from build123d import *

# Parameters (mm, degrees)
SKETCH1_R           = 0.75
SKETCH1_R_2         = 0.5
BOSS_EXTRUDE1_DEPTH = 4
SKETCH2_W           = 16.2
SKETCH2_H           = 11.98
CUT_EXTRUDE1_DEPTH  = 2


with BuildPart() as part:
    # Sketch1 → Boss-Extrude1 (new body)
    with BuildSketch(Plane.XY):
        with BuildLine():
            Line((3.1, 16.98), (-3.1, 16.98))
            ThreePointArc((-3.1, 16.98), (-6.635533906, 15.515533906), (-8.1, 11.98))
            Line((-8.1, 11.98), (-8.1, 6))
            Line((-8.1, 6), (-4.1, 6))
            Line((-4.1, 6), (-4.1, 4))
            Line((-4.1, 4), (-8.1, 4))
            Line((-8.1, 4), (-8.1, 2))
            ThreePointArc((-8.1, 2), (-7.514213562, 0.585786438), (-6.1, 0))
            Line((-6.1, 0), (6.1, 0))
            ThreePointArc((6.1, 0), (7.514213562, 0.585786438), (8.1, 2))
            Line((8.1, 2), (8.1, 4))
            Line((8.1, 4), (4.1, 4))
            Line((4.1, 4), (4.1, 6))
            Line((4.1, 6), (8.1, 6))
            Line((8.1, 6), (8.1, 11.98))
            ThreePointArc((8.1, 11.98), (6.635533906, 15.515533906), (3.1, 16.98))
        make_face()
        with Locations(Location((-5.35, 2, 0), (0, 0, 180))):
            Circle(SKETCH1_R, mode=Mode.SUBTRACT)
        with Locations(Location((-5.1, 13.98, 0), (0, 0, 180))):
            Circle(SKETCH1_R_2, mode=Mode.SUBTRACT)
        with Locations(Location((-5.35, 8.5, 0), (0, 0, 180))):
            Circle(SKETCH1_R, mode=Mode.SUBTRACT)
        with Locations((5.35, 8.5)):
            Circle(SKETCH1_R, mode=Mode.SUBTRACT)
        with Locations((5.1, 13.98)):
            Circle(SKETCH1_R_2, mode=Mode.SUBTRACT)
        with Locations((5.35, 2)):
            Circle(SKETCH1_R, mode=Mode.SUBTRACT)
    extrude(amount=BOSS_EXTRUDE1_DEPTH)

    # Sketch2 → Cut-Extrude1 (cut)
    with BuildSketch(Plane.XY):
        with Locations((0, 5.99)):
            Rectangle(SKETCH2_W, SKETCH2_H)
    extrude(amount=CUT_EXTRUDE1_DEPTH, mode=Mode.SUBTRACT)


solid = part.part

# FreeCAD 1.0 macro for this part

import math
import FreeCAD as App
import Part
import Sketcher
Q = App.Units.Quantity

doc = App.newDocument("Part")
body = doc.addObject("PartDesign::Body", "Body")

# Sketch on XY plane
sketch1 = body.newObject("Sketcher::SketchObject", "Sketch")
sketch1.AttachmentSupport = (doc.getObject("XY_Plane"), [""])
sketch1.MapMode = "FlatFace"
sketch1.addGeometry([
    Part.LineSegment(App.Vector(3.1, 17, 0), App.Vector(-3.1, 17, 0)),  # 0
    Part.ArcOfCircle(Part.Circle(App.Vector(-3.1, 12, 0), App.Vector(0, 0, 1), 5), math.radians(90), math.radians(180)),  # 1
    Part.LineSegment(App.Vector(-8.1, 12, 0), App.Vector(-8.1, 6, 0)),  # 2
    Part.LineSegment(App.Vector(-8.1, 6, 0), App.Vector(-4.1, 6, 0)),  # 3
    Part.LineSegment(App.Vector(-4.1, 6, 0), App.Vector(-4.1, 4, 0)),  # 4
    Part.LineSegment(App.Vector(-4.1, 4, 0), App.Vector(-8.1, 4, 0)),  # 5
    Part.LineSegment(App.Vector(-8.1, 4, 0), App.Vector(-8.1, 2, 0)),  # 6
    Part.ArcOfCircle(Part.Circle(App.Vector(-6.1, 2, 0), App.Vector(0, 0, 1), 2), math.radians(-180), math.radians(-90)),  # 7
    Part.LineSegment(App.Vector(-6.1, 0, 0), App.Vector(6.1, 0, 0)),  # 8
    Part.ArcOfCircle(Part.Circle(App.Vector(6.1, 2, 0), App.Vector(0, 0, 1), 2), math.radians(-90), math.radians(0)),  # 9
    Part.LineSegment(App.Vector(8.1, 2, 0), App.Vector(8.1, 4, 0)),  # 10
    Part.LineSegment(App.Vector(8.1, 4, 0), App.Vector(4.1, 4, 0)),  # 11
    Part.LineSegment(App.Vector(4.1, 4, 0), App.Vector(4.1, 6, 0)),  # 12
    Part.LineSegment(App.Vector(4.1, 6, 0), App.Vector(8.1, 6, 0)),  # 13
    Part.LineSegment(App.Vector(8.1, 6, 0), App.Vector(8.1, 12, 0)),  # 14
    Part.ArcOfCircle(Part.Circle(App.Vector(3.1, 12, 0), App.Vector(0, 0, 1), 5), math.radians(0), math.radians(90)),  # 15
    Part.Circle(App.Vector(-5.3, 2, 0), App.Vector(0, 0, 1), 0.8),  # 16
    Part.Circle(App.Vector(5.3, 2, 0), App.Vector(0, 0, 1), 0.8),  # 17
    Part.Circle(App.Vector(-5.3, 8.5, 0), App.Vector(0, 0, 1), 0.8),  # 18
    Part.Circle(App.Vector(-5.1, 14, 0), App.Vector(0, 0, 1), 0.5),  # 19
    Part.Circle(App.Vector(5.3, 8.5, 0), App.Vector(0, 0, 1), 0.8),  # 20
    Part.Circle(App.Vector(5.1, 14, 0), App.Vector(0, 0, 1), 0.5),  # 21
], False)
sketch1.addConstraint([
    Sketcher.Constraint("Tangent", 0, 2, 1, 1),
    Sketcher.Constraint("Tangent", 1, 2, 2, 1),
    Sketcher.Constraint("Coincident", 2, 2, 3, 1),
    Sketcher.Constraint("Coincident", 3, 2, 4, 1),
    Sketcher.Constraint("Coincident", 4, 2, 5, 1),
    Sketcher.Constraint("Coincident", 5, 2, 6, 1),
    Sketcher.Constraint("Tangent", 6, 2, 7, 1),
    Sketcher.Constraint("Tangent", 7, 2, 8, 1),
    Sketcher.Constraint("Tangent", 8, 2, 9, 1),
    Sketcher.Constraint("Tangent", 9, 2, 10, 1),
    Sketcher.Constraint("Coincident", 10, 2, 11, 1),
    Sketcher.Constraint("Coincident", 11, 2, 12, 1),
    Sketcher.Constraint("Coincident", 12, 2, 13, 1),
    Sketcher.Constraint("Coincident", 13, 2, 14, 1),
    Sketcher.Constraint("Tangent", 14, 2, 15, 1),
    Sketcher.Constraint("Tangent", 15, 2, 0, 1),
    Sketcher.Constraint("Horizontal", 0),
    Sketcher.Constraint("Vertical", 2),
    Sketcher.Constraint("Horizontal", 3),
    Sketcher.Constraint("Vertical", 4),
    Sketcher.Constraint("Horizontal", 5),
    Sketcher.Constraint("Vertical", 6),
    Sketcher.Constraint("Horizontal", 8),
    Sketcher.Constraint("Vertical", 10),
    Sketcher.Constraint("Horizontal", 11),
    Sketcher.Constraint("Vertical", 12),
    Sketcher.Constraint("Horizontal", 13),
    Sketcher.Constraint("Vertical", 14),
    Sketcher.Constraint("Equal", 7, 9),
    Sketcher.Constraint("Equal", 1, 15),
    Sketcher.Constraint("Equal", 16, 17),
    Sketcher.Constraint("Equal", 17, 18),
    Sketcher.Constraint("Equal", 18, 20),
    Sketcher.Constraint("Equal", 19, 21),
    Sketcher.Constraint("Symmetric", 7, 2, 8, 2, -1, 1),
    Sketcher.Constraint("Symmetric", 16, 3, 17, 3, -2),
    Sketcher.Constraint("Symmetric", 18, 3, 20, 3, -2),
    Sketcher.Constraint("Symmetric", 19, 3, 21, 3, -2),
    Sketcher.Constraint("Symmetric", 4, 2, 11, 2, -2),
    Sketcher.Constraint("Symmetric", 2, 2, 13, 2, -2),
    Sketcher.Constraint("Horizontal", 9, 3, 16, 3),
    Sketcher.Constraint("Vertical", 16, 3, 18, 3),
    Sketcher.Constraint("Vertical", 2, 2, 5, 2),
    Sketcher.Constraint("Equal", 4, 6),
    Sketcher.Constraint("Diameter", 19, Q("1 mm")),
    Sketcher.Constraint("Radius", 1, Q("5 mm")),
    Sketcher.Constraint("Radius", 7, Q("2 mm")),
    Sketcher.Constraint("Diameter", 16, Q("1.5 mm")),
    Sketcher.Constraint("DistanceX", 3, 1, 3, 2, Q("4 mm")),
    Sketcher.Constraint("DistanceY", 4, 2, 4, 1, Q("2 mm")),
    Sketcher.Constraint("DistanceX", 0, 2, 0, 1, Q("6.2 mm")),
    Sketcher.Constraint("DistanceX", 19, 3, 1, 3, Q("2 mm")),
    Sketcher.Constraint("DistanceY", 1, 3, 19, 3, Q("2 mm")),
    Sketcher.Constraint("DistanceY", 2, 2, 2, 1, Q("5.98 mm")),
    Sketcher.Constraint("DistanceY", -1, 1, 18, 3, Q("8.5 mm")),
    Sketcher.Constraint("DistanceX", 16, 3, 17, 3, Q("10.7 mm")),
])
pad1 = body.newObject("PartDesign::Pad", "Pad")
pad1.Profile = sketch1
pad1.Length = 4

# Sketch on XY plane
sketch2 = body.newObject("Sketcher::SketchObject", "Sketch001")
sketch2.AttachmentSupport = (doc.getObject("XY_Plane"), [""])
sketch2.MapMode = "FlatFace"
sketch2.addGeometry([
    Part.LineSegment(App.Vector(-8, 12, 0), App.Vector(-8, 0, 0)),
    Part.LineSegment(App.Vector(-8, 0, 0), App.Vector(8, 0, 0)),
    Part.LineSegment(App.Vector(8, 0, 0), App.Vector(8, 12, 0)),
    Part.LineSegment(App.Vector(8, 12, 0), App.Vector(-8, 12, 0)),
], False)
sketch2.addConstraint([
    Sketcher.Constraint("Coincident", 0, 2, 1, 1),
    Sketcher.Constraint("Coincident", 1, 2, 2, 1),
    Sketcher.Constraint("Coincident", 2, 2, 3, 1),
    Sketcher.Constraint("Coincident", 3, 2, 0, 1),
    Sketcher.Constraint("Vertical", 0),
    Sketcher.Constraint("Horizontal", 1),
    Sketcher.Constraint("Vertical", 2),
    Sketcher.Constraint("Horizontal", 3),
    Sketcher.Constraint("Symmetric", 0, 2, 1, 2, -1, 1),
    Sketcher.Constraint("DistanceX", 1, 1, 1, 2, Q("16.2 mm")),
    Sketcher.Constraint("DistanceY", 0, 2, 0, 1, Q("11.98 mm")),
])
pocket1 = body.newObject("PartDesign::Pocket", "Pocket")
pocket1.Profile = sketch2
pocket1.Length = 2
pocket1.Reversed = True

doc.recompute()
